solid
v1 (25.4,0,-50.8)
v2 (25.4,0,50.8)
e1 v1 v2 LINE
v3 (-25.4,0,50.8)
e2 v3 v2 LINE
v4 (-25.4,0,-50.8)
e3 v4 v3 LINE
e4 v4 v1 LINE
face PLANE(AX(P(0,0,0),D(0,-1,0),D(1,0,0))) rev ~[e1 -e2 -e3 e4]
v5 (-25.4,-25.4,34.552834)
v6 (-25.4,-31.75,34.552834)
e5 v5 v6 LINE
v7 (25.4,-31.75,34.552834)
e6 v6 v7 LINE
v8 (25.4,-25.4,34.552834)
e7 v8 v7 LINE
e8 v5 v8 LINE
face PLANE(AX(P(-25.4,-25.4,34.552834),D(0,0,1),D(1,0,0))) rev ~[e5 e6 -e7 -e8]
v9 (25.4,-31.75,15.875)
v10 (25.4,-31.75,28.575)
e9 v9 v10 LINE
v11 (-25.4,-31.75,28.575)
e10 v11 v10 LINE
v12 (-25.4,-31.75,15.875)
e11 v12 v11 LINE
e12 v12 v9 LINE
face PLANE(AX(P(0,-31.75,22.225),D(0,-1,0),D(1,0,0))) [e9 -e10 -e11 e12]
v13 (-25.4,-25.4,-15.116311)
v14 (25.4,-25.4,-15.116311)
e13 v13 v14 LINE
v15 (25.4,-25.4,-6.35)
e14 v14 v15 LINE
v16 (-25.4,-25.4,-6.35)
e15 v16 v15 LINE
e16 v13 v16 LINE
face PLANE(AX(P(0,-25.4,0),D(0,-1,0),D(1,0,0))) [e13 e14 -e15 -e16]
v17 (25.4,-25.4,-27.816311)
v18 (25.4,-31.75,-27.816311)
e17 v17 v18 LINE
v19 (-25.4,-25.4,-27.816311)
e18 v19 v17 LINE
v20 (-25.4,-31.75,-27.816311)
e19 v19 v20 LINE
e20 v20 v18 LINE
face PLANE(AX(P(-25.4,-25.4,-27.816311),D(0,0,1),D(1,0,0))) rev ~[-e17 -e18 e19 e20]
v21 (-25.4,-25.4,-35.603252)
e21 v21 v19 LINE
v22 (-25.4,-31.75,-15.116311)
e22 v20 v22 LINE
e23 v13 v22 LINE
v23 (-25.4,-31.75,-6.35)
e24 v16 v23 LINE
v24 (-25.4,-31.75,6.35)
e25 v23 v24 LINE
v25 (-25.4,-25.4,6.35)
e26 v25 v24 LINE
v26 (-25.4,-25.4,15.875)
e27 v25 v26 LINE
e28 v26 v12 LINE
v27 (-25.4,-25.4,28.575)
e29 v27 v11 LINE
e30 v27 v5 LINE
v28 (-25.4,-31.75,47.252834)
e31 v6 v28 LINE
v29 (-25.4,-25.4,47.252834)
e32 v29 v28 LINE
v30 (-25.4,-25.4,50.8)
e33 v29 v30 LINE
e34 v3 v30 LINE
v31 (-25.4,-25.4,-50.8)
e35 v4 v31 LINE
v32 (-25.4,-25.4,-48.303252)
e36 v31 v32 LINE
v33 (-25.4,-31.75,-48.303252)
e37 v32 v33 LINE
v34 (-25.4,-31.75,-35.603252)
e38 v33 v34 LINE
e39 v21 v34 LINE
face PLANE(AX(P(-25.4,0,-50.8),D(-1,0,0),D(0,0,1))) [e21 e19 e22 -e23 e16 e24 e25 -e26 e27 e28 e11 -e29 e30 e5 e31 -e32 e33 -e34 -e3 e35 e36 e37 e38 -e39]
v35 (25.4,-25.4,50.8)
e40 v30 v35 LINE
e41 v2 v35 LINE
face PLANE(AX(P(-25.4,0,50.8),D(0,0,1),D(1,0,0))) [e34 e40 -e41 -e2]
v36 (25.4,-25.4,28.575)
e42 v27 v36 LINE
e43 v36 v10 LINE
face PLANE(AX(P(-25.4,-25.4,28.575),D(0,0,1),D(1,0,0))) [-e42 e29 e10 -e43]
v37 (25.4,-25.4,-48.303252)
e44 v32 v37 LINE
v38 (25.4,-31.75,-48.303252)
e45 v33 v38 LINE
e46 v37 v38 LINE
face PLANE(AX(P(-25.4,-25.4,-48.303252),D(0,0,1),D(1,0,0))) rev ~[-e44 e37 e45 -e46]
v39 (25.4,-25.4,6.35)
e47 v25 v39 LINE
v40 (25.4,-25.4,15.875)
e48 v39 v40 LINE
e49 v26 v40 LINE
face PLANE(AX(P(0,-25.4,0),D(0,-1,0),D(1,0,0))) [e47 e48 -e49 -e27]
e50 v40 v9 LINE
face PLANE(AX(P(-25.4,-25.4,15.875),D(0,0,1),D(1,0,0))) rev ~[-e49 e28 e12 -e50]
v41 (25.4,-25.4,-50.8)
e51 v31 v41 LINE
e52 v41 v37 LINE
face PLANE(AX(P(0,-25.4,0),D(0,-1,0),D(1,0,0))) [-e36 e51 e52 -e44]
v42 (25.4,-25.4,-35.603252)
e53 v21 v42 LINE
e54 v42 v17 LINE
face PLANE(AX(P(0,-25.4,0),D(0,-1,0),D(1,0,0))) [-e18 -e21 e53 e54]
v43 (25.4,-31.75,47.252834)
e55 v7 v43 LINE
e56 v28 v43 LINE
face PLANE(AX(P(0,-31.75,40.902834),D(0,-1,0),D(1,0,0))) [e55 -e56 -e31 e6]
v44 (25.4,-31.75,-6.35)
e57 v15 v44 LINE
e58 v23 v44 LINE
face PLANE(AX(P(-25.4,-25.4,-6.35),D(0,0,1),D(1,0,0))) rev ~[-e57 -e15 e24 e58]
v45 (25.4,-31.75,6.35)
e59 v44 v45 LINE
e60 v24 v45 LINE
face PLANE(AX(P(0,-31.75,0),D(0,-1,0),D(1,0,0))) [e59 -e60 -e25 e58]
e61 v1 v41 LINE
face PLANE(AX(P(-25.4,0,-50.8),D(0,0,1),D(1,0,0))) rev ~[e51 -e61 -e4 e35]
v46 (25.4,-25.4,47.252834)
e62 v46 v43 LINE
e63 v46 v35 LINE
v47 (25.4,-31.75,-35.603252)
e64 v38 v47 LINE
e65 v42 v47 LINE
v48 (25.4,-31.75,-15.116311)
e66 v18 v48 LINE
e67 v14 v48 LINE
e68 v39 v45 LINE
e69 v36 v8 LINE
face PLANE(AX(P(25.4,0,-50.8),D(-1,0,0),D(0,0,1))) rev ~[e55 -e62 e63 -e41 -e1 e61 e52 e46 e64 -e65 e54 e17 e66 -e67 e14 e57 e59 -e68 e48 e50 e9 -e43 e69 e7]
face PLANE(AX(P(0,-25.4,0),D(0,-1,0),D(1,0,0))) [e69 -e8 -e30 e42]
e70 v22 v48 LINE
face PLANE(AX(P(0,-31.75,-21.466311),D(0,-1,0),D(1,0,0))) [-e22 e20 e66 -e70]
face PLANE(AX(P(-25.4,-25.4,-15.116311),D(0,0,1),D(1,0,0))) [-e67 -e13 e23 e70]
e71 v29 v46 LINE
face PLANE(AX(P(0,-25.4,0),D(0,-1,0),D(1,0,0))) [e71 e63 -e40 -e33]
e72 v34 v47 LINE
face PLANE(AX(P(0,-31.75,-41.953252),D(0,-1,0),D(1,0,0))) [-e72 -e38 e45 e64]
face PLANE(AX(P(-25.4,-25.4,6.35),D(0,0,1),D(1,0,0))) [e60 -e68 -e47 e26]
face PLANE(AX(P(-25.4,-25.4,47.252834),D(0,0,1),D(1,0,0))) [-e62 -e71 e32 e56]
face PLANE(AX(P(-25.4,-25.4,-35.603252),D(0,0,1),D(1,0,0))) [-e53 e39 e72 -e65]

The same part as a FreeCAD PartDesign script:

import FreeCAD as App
import Part
import Sketcher
from FreeCAD import Vector
Q = App.Units.Quantity

doc = App.newDocument("Part")
body = doc.addObject("PartDesign::Body", "Body")

# Sketch on XZ plane
sketch1 = body.newObject("Sketcher::SketchObject", "Sketch")
sketch1.AttachmentSupport = (doc.getObject("XZ_Plane"), [""])
sketch1.MapMode = "FlatFace"
sketch1.addGeometry(Part.LineSegment(Vector(-25, 51, 0), Vector(-25, -51, 0)), False)
sketch1.addGeometry(Part.LineSegment(Vector(-25, -51, 0), Vector(25, -51, 0)), False)
sketch1.addGeometry(Part.LineSegment(Vector(25, -51, 0), Vector(25, 51, 0)), False)
sketch1.addGeometry(Part.LineSegment(Vector(25, 51, 0), Vector(-25, 51, 0)), False)
sketch1.addConstraint(Sketcher.Constraint("Coincident", 0, 2, 1, 1))
sketch1.addConstraint(Sketcher.Constraint("Coincident", 1, 2, 2, 1))
sketch1.addConstraint(Sketcher.Constraint("Coincident", 2, 2, 3, 1))
sketch1.addConstraint(Sketcher.Constraint("Coincident", 3, 2, 0, 1))
sketch1.addConstraint(Sketcher.Constraint("Vertical", 0))
sketch1.addConstraint(Sketcher.Constraint("Horizontal", 1))
sketch1.addConstraint(Sketcher.Constraint("Vertical", 2))
sketch1.addConstraint(Sketcher.Constraint("Horizontal", 3))
sketch1.addConstraint(Sketcher.Constraint("Symmetric", 0, 2, 2, 2, -1, 1))
sketch1.addConstraint(Sketcher.Constraint("DistanceX", 1, 1, 1, 2, Q("2 in")))
sketch1.addConstraint(Sketcher.Constraint("DistanceY", 0, 2, 0, 1, Q("4 in")))
pad1 = body.newObject("PartDesign::Pad", "Pad")
pad1.Profile = sketch1
pad1.Length = Q("1 in")

# Sketch on XZ plane
sketch2 = body.newObject("Sketcher::SketchObject", "Sketch001")
sketch2.AttachmentSupport = (doc.getObject("XZ_Plane"), [""])
sketch2.MapMode = "FlatFace"
sketch2.AttachmentOffset = App.Placement(Vector(0, 0, 1 * 25.4), App.Rotation())
sketch2.addGeometry(Part.LineSegment(Vector(-25, 6, 0), Vector(-25, -6, 0)), False)
sketch2.addGeometry(Part.LineSegment(Vector(-25, -6, 0), Vector(25, -6, 0)), False)
sketch2.addGeometry(Part.LineSegment(Vector(25, -6, 0), Vector(25, 6, 0)), False)
sketch2.addGeometry(Part.LineSegment(Vector(25, 6, 0), Vector(-25, 6, 0)), False)
sketch2.addConstraint(Sketcher.Constraint("Coincident", 0, 2, 1, 1))
sketch2.addConstraint(Sketcher.Constraint("Coincident", 1, 2, 2, 1))
sketch2.addConstraint(Sketcher.Constraint("Coincident", 2, 2, 3, 1))
sketch2.addConstraint(Sketcher.Constraint("Coincident", 3, 2, 0, 1))
sketch2.addConstraint(Sketcher.Constraint("Vertical", 0))
sketch2.addConstraint(Sketcher.Constraint("Horizontal", 1))
sketch2.addConstraint(Sketcher.Constraint("Vertical", 2))
sketch2.addConstraint(Sketcher.Constraint("Horizontal", 3))
sketch2.addConstraint(Sketcher.Constraint("Symmetric", 0, 2, 2, 2, -1, 1))
sketch2.addConstraint(Sketcher.Constraint("DistanceX", 1, 1, 1, 2, Q("2 in")))
sketch2.addConstraint(Sketcher.Constraint("DistanceY", 0, 2, 0, 1, Q("0.5 in")))
pad2 = body.newObject("PartDesign::Pad", "Pad001")
pad2.Profile = sketch2
pad2.Length = Q("0.25 in")

# Sketch on XZ plane
sketch3 = body.newObject("Sketcher::SketchObject", "Sketch002")
sketch3.AttachmentSupport = (doc.getObject("XZ_Plane"), [""])
sketch3.MapMode = "FlatFace"
sketch3.AttachmentOffset = App.Placement(Vector(0, 0, 1 * 25.4), App.Rotation())
sketch3.addGeometry(Part.LineSegment(Vector(-25, 29, 0), Vector(-25, 16, 0)), False)
sketch3.addGeometry(Part.LineSegment(Vector(-25, 16, 0), Vector(25, 16, 0)), False)
sketch3.addGeometry(Part.LineSegment(Vector(25, 16, 0), Vector(25, 29, 0)), False)
sketch3.addGeometry(Part.LineSegment(Vector(25, 29, 0), Vector(-25, 29, 0)), False)
sketch3.addGeometry(Part.LineSegment(Vector(-25, 47, 0), Vector(-25, 35, 0)), False)
sketch3.addGeometry(Part.LineSegment(Vector(-25, 35, 0), Vector(25, 35, 0)), False)
sketch3.addGeometry(Part.LineSegment(Vector(25, 35, 0), Vector(25, 47, 0)), False)
sketch3.addGeometry(Part.LineSegment(Vector(25, 47, 0), Vector(-25, 47, 0)), False)
sketch3.addGeometry(Part.LineSegment(Vector(-25, -15, 0), Vector(-25, -28, 0)), False)
sketch3.addGeometry(Part.LineSegment(Vector(-25, -28, 0), Vector(25, -28, 0)), False)
sketch3.addGeometry(Part.LineSegment(Vector(25, -28, 0), Vector(25, -15, 0)), False)
sketch3.addGeometry(Part.LineSegment(Vector(25, -15, 0), Vector(-25, -15, 0)), False)
sketch3.addGeometry(Part.LineSegment(Vector(-25, -36, 0), Vector(-25, -48, 0)), False)
sketch3.addGeometry(Part.LineSegment(Vector(-25, -48, 0), Vector(25, -48, 0)), False)
sketch3.addGeometry(Part.LineSegment(Vector(25, -48, 0), Vector(25, -36, 0)), False)
sketch3.addGeometry(Part.LineSegment(Vector(25, -36, 0), Vector(-25, -36, 0)), False)
sketch3.addConstraint(Sketcher.Constraint("Coincident", 0, 2, 1, 1))
sketch3.addConstraint(Sketcher.Constraint("Coincident", 1, 2, 2, 1))
sketch3.addConstraint(Sketcher.Constraint("Coincident", 2, 2, 3, 1))
sketch3.addConstraint(Sketcher.Constraint("Coincident", 3, 2, 0, 1))
sketch3.addConstraint(Sketcher.Constraint("Coincident", 4, 2, 5, 1))
sketch3.addConstraint(Sketcher.Constraint("Coincident", 5, 2, 6, 1))
sketch3.addConstraint(Sketcher.Constraint("Coincident", 6, 2, 7, 1))
sketch3.addConstraint(Sketcher.Constraint("Coincident", 7, 2, 4, 1))
sketch3.addConstraint(Sketcher.Constraint("Coincident", 8, 2, 9, 1))
sketch3.addConstraint(Sketcher.Constraint("Coincident", 9, 2, 10, 1))
sketch3.addConstraint(Sketcher.Constraint("Coincident", 10, 2, 11, 1))
sketch3.addConstraint(Sketcher.Constraint("Coincident", 11, 2, 8, 1))
sketch3.addConstraint(Sketcher.Constraint("Coincident", 12, 2, 13, 1))
sketch3.addConstraint(Sketcher.Constraint("Coincident", 13, 2, 14, 1))
sketch3.addConstraint(Sketcher.Constraint("Coincident", 14, 2, 15, 1))
sketch3.addConstraint(Sketcher.Constraint("Coincident", 15, 2, 12, 1))
sketch3.addConstraint(Sketcher.Constraint("Vertical", 0))
sketch3.addConstraint(Sketcher.Constraint("Horizontal", 1))
sketch3.addConstraint(Sketcher.Constraint("Vertical", 2))
sketch3.addConstraint(Sketcher.Constraint("Horizontal", 3))
sketch3.addConstraint(Sketcher.Constraint("Vertical", 4))
sketch3.addConstraint(Sketcher.Constraint("Horizontal", 5))
sketch3.addConstraint(Sketcher.Constraint("Vertical", 6))
sketch3.addConstraint(Sketcher.Constraint("Horizontal", 7))
sketch3.addConstraint(Sketcher.Constraint("Vertical", 8))
sketch3.addConstraint(Sketcher.Constraint("Horizontal", 9))
sketch3.addConstraint(Sketcher.Constraint("Vertical", 10))
sketch3.addConstraint(Sketcher.Constraint("Horizontal", 11))
sketch3.addConstraint(Sketcher.Constraint("Vertical", 12))
sketch3.addConstraint(Sketcher.Constraint("Horizontal", 13))
sketch3.addConstraint(Sketcher.Constraint("Vertical", 14))
sketch3.addConstraint(Sketcher.Constraint("Horizontal", 15))
sketch3.addConstraint(Sketcher.Constraint("Vertical", 3, 2, 4, 2))
sketch3.addConstraint(Sketcher.Constraint("Vertical", 2, 2, 5, 2))
sketch3.addConstraint(Sketcher.Constraint("Vertical", 7, 2, 8, 2))
sketch3.addConstraint(Sketcher.Constraint("Vertical", 6, 2, 9, 2))
sketch3.addConstraint(Sketcher.Constraint("Vertical", 11, 2, 12, 2))
sketch3.addConstraint(Sketcher.Constraint("Vertical", 10, 2, 13, 2))
sketch3.addConstraint(Sketcher.Constraint("Equal", 2, 4))
sketch3.addConstraint(Sketcher.Constraint("Equal", 6, 8))
sketch3.addConstraint(Sketcher.Constraint("Equal", 10, 12))
sketch3.addConstraint(Sketcher.Constraint("DistanceX", 1, 1, 1, 2, Q("2 in")))
sketch3.addConstraint(Sketcher.Constraint("DistanceY", 0, 2, 0, 1, Q("0.5 in")))
sketch3.addConstraint(Sketcher.Constraint("DistanceX", 0, 2, -1, 1, Q("1 in")))
sketch3.addConstraint(Sketcher.Constraint("DistanceY", -1, 1, 0, 2, Q("0.625 in")))
sketch3.addConstraint(Sketcher.Constraint("DistanceY", 8, 2, -1, 1, 27.816311))
sketch3.addConstraint(Sketcher.Constraint("DistanceY", 14, 2, -1, 1, 35.603252))
sketch3.addConstraint(Sketcher.Constraint("DistanceY", -1, 1, 4, 2, 34.552834))
pad3 = body.newObject("PartDesign::Pad", "Pad002")
pad3.Profile = sketch3
pad3.Length = Q("0.25 in")

doc.recompute()
